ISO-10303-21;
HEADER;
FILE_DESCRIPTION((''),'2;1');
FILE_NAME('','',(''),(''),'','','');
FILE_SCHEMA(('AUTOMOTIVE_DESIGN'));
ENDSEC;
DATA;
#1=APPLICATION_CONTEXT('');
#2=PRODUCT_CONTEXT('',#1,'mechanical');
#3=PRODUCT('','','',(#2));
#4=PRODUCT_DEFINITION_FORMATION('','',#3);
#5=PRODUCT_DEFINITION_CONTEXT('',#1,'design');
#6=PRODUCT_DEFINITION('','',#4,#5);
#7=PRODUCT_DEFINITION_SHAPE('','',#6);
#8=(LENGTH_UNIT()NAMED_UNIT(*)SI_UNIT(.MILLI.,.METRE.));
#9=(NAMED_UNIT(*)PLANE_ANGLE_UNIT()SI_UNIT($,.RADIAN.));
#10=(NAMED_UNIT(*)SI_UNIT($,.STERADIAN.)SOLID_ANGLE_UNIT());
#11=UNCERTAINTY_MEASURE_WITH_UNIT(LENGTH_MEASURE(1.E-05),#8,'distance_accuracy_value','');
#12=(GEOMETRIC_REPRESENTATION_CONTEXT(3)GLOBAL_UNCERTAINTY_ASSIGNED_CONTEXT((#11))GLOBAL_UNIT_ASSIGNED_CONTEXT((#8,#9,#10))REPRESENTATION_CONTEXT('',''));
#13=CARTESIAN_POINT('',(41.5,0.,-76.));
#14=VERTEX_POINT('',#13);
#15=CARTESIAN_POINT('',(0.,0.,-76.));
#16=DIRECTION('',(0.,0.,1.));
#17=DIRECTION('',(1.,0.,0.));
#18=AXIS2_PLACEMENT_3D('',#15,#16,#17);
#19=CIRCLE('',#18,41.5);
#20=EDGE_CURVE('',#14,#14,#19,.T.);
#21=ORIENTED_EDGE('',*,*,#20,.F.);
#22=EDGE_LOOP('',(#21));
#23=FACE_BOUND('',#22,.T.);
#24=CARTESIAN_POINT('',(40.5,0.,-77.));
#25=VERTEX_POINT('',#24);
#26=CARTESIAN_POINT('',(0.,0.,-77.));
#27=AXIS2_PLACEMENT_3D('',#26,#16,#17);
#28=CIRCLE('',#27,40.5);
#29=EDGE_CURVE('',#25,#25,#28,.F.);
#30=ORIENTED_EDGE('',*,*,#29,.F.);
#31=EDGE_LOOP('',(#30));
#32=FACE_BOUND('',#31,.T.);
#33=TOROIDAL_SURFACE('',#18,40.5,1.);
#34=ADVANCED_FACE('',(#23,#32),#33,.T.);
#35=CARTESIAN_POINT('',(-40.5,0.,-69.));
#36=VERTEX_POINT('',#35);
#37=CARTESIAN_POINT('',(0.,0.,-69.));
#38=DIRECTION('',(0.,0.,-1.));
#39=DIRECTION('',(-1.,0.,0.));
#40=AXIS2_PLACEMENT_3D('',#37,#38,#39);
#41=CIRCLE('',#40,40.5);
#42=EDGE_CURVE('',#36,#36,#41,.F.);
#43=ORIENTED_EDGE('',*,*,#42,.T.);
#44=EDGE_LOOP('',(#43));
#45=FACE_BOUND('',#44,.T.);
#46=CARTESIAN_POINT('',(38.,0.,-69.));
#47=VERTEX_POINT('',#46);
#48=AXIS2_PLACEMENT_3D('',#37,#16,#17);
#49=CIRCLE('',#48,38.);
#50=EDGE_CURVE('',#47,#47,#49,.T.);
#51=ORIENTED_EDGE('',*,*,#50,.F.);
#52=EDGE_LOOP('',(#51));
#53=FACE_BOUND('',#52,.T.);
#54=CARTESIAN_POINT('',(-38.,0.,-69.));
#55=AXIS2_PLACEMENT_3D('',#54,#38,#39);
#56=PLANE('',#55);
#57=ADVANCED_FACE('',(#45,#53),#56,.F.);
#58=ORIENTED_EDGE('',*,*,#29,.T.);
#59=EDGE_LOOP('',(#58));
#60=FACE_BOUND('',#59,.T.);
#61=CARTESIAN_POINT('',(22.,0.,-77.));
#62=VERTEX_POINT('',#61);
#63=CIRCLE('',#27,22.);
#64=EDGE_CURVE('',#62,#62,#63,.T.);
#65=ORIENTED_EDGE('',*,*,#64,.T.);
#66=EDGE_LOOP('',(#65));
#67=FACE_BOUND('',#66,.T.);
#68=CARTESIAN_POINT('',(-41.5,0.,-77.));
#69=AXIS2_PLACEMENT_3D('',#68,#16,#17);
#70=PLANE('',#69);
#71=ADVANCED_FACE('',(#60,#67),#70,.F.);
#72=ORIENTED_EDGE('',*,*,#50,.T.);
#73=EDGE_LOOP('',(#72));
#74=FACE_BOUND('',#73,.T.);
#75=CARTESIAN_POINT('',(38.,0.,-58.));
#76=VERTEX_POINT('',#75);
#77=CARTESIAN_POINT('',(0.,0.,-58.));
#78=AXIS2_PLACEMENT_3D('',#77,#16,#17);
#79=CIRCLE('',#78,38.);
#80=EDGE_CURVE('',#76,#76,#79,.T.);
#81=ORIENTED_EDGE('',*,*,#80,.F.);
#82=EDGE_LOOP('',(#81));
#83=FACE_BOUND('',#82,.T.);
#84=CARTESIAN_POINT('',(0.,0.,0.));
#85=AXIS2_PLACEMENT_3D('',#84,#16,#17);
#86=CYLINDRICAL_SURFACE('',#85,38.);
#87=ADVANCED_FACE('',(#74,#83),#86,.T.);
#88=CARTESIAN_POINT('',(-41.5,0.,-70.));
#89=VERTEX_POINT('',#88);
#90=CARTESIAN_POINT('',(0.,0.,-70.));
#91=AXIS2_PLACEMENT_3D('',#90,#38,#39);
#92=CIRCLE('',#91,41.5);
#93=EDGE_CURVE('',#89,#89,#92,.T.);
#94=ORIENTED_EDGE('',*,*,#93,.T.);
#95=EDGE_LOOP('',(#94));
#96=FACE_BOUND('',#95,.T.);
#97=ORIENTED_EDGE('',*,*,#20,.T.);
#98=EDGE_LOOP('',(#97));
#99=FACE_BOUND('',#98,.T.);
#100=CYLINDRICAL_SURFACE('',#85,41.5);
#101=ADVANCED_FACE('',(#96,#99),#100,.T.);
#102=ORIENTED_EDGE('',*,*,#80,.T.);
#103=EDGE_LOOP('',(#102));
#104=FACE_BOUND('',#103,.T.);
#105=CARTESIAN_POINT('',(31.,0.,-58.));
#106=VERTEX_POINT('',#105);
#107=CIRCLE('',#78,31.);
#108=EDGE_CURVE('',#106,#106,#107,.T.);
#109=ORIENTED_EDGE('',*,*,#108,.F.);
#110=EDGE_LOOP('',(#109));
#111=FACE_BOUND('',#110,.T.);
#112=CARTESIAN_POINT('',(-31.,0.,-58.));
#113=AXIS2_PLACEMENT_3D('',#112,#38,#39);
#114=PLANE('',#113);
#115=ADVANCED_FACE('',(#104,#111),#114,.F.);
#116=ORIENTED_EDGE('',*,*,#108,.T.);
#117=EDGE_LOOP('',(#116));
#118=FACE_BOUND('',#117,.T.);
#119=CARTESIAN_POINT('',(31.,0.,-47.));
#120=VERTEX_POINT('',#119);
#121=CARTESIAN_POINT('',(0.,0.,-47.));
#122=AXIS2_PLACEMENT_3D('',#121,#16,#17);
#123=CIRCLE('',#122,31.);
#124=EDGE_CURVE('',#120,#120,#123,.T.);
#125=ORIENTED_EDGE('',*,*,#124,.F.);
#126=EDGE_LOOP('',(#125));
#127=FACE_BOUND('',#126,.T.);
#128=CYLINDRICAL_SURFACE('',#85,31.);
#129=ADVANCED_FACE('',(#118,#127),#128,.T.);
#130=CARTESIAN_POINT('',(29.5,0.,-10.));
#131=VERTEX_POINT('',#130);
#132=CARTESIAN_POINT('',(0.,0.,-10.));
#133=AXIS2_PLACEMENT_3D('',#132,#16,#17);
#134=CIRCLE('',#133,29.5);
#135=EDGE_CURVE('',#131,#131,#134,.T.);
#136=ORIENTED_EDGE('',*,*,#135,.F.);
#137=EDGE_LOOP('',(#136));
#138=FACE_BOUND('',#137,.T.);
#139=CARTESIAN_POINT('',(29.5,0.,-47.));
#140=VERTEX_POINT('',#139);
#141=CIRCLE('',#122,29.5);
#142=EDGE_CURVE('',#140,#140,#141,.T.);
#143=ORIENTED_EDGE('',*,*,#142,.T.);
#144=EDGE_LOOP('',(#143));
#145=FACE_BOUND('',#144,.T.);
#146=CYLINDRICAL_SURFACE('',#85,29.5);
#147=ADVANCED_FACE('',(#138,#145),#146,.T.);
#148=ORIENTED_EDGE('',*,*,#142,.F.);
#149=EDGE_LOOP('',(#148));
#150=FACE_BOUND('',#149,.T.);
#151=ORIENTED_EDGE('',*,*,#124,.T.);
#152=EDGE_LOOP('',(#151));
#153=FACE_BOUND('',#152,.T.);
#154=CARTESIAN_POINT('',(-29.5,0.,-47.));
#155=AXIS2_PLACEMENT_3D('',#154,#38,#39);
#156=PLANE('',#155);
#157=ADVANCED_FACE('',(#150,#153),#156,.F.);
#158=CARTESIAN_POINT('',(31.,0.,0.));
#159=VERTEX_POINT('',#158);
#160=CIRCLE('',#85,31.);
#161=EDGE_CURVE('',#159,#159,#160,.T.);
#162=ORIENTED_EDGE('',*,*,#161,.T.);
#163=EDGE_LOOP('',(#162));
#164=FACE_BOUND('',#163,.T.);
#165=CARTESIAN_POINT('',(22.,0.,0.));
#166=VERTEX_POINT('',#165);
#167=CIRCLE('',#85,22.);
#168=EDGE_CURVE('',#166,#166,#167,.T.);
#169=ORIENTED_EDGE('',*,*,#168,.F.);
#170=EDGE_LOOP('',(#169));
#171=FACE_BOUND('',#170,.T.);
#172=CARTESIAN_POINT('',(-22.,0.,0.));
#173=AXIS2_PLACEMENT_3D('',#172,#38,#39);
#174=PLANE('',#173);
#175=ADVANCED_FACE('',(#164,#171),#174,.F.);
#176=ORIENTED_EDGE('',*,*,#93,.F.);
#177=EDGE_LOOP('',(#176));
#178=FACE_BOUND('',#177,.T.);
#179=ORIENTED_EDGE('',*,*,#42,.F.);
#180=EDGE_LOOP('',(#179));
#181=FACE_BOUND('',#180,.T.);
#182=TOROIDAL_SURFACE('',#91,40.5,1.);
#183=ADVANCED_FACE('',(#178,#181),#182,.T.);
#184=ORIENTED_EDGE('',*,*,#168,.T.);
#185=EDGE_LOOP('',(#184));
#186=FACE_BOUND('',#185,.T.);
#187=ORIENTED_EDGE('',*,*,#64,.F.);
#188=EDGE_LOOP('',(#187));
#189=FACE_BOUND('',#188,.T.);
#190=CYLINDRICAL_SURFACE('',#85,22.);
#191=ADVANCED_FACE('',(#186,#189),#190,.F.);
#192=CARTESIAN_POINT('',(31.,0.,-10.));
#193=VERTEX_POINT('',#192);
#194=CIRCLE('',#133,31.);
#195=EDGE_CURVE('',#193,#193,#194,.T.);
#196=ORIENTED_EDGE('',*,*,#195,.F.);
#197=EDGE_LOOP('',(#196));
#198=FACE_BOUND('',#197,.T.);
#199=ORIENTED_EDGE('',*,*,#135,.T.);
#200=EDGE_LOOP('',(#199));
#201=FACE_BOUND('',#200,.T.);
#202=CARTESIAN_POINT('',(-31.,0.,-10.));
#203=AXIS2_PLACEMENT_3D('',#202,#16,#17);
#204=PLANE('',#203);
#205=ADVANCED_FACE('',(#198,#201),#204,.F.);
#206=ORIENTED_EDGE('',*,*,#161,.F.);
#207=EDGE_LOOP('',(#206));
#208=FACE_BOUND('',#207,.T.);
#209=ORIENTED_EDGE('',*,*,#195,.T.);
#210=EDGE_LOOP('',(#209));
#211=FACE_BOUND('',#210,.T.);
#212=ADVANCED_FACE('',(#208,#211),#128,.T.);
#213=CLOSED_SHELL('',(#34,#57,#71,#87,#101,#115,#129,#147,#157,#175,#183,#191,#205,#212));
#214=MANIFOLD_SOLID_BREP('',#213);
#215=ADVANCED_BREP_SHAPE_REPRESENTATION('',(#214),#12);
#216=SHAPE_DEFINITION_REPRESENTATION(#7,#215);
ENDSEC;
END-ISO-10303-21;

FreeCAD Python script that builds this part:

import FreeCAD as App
import Part
import Sketcher

V = App.Vector


def edges_at(feature, points):
    """Names of the edges that pass closest to the given points."""
    edges = feature.Shape.Edges
    near = lambda p: min(range(len(edges)), key=lambda i: edges[i].distToShape(Part.Vertex(*p))[0])
    return sorted({f"Edge{near(p) + 1}" for p in points})


def add_polygon(sketch, points):
    """Adds a closed chain of lines whose ends are joined by coincident constraints."""
    first, n = sketch.GeometryCount, len(points)
    for a, b in zip(points, points[1:] + points[:1]):
        sketch.addGeometry(Part.LineSegment(App.Vector(*a, 0), App.Vector(*b, 0)), False)
    for i in range(n):
        sketch.addConstraint(Sketcher.Constraint("Coincident", first + i, 2, first + (i + 1) % n, 1))

doc = App.newDocument("Part")
body = doc.addObject("PartDesign::Body", "Body")

sketch1 = doc.addObject("Sketcher::SketchObject", "Sketch")
body.addObject(sketch1)
sketch1.AttachmentSupport = (doc.XZ_Plane, [""])
sketch1.MapMode = "FlatFace"
add_polygon(sketch1, [(-22, -77), (-41.5, -77), (-41.5, -69), (-38, -69), (-38, -58), (-31, -58), (-31, -47), (-29.5, -47), (-29.5, -10), (-31, -10), (-31, 0), (-22, 0)])
sketch1.addConstraint([
    Sketcher.Constraint("Horizontal", 0),
    Sketcher.Constraint("Vertical", 1),
    Sketcher.Constraint("Horizontal", 2),
    Sketcher.Constraint("Vertical", 3),
    Sketcher.Constraint("Horizontal", 4),
    Sketcher.Constraint("Vertical", 5),
    Sketcher.Constraint("Horizontal", 6),
    Sketcher.Constraint("Vertical", 7),
    Sketcher.Constraint("Horizontal", 8),
    Sketcher.Constraint("Vertical", 9),
    Sketcher.Constraint("Horizontal", 10),
    Sketcher.Constraint("Vertical", 11),
    Sketcher.Constraint("PointOnObject", 9, 2, -1),
    Sketcher.Constraint("Vertical", 5, 2, 8, 2),
    Sketcher.Constraint("Equal", 3, 5),
    Sketcher.Constraint("DistanceX", 4, 1, 4, 2, 7.0),
    Sketcher.Constraint("DistanceX", 10, 1, 10, 2, 9.0),
    Sketcher.Constraint("DistanceY", 1, 1, 1, 2, 8.0),
    Sketcher.Constraint("DistanceY", 3, 1, 3, 2, 11.0),
    Sketcher.Constraint("DistanceY", 7, 1, 7, 2, 37.0),
    Sketcher.Constraint("DistanceY", 9, 1, 9, 2, 10.0),
    Sketcher.Constraint("DistanceX", 0, 2, 0, 1, 19.5),
    Sketcher.Constraint("DistanceX", 6, 1, 6, 2, 1.5),
    Sketcher.Constraint("DistanceX", 2, 2, -1, 1, 38.0),
])
revolution = doc.addObject("PartDesign::Revolution", "Revolution")
body.addObject(revolution)
revolution.Profile = sketch1
revolution.ReferenceAxis = (sketch1, ["V_Axis"])
revolution.Angle = 360
doc.recompute()

fillet = doc.addObject("PartDesign::Fillet", "Fillet")
body.addObject(fillet)
fillet.Base = (revolution, edges_at(revolution, [(-41.5, 0, -77), (-41.5, 0, -69)]))
fillet.Radius = 1

doc.recompute()
